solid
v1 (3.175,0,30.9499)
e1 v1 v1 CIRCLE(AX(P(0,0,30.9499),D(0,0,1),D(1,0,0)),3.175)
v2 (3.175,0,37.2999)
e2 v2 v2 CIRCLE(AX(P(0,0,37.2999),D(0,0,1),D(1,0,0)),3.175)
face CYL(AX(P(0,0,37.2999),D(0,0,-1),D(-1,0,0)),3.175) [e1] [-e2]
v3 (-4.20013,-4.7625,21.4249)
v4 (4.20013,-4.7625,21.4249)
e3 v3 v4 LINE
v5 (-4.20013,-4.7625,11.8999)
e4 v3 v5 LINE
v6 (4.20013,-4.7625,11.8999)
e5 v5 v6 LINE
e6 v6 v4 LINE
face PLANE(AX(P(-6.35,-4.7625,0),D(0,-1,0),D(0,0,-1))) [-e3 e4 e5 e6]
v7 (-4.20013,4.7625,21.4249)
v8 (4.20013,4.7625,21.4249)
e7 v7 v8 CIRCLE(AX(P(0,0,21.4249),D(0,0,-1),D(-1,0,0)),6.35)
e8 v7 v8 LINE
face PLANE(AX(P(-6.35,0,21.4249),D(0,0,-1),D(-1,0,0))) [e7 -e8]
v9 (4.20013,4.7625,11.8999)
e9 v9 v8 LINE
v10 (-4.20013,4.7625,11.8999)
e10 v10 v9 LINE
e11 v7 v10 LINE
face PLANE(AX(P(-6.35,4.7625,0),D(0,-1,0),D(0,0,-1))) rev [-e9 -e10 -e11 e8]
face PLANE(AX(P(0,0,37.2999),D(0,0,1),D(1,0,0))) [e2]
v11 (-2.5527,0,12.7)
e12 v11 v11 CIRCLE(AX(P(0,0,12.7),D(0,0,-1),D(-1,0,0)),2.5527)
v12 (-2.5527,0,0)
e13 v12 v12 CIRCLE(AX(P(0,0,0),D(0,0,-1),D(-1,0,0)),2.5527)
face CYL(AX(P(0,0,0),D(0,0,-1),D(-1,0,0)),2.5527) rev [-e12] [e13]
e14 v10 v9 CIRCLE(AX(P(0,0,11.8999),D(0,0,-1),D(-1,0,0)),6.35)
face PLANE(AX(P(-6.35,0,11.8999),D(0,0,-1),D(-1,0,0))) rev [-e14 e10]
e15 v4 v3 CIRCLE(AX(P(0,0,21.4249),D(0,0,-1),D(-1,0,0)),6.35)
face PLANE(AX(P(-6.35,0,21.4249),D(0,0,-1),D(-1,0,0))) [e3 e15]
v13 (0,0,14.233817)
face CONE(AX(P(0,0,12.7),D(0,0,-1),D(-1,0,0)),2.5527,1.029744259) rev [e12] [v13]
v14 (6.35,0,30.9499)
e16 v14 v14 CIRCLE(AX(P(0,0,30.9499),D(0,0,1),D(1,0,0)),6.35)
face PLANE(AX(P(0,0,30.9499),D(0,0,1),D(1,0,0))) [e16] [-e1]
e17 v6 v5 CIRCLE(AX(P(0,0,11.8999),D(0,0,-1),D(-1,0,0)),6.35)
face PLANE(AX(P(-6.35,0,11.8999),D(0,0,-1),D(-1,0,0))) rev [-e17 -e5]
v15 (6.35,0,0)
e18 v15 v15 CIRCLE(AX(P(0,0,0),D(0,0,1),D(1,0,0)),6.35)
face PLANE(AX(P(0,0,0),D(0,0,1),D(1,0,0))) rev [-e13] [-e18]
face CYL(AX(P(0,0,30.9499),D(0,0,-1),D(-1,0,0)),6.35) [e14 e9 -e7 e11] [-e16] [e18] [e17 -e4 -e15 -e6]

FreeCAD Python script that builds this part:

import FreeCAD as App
import Part
import Sketcher

V = App.Vector
Q = App.Units.Quantity

doc = App.newDocument("Part")
body = doc.addObject("PartDesign::Body", "Body")

# Sketch on XY plane
sketch1 = body.newObject("Sketcher::SketchObject", "Sketch")
sketch1.AttachmentSupport = (doc.getObject("XY_Plane"), [""])
sketch1.MapMode = "FlatFace"
sketch1.addGeometry(Part.Circle(V(0, 0, 0), V(0, 0, 1), 6.35), False)
sketch1.addConstraint([
    Sketcher.Constraint("Coincident", 0, 3, -1, 1),
    Sketcher.Constraint("Diameter", 0, Q("0.5 in")),
])
pad1 = body.newObject("PartDesign::Pad", "Pad")
pad1.Profile = sketch1
pad1.Length = Q("1.2185 in")

# Sketch on XY plane
sketch2 = body.newObject("Sketcher::SketchObject", "Sketch001")
sketch2.AttachmentSupport = (doc.getObject("XY_Plane"), [""])
sketch2.MapMode = "FlatFace"
sketch2.addGeometry(Part.Circle(V(0, 0, 0), V(0, 0, 1), 2.5527), False)
sketch2.addConstraint([
    Sketcher.Constraint("Coincident", 0, 3, -1, 1),
    Sketcher.Constraint("Diameter", 0, Q("0.201 in")),
])
doc.recompute()
hole = body.newObject("PartDesign::Hole", "Hole")
hole.Profile = sketch2
hole.ThreadType = "None"
hole.Diameter = Q("0.201 in")
hole.DepthType = "Dimension"
hole.Depth = Q("0.5 in")
hole.DrillPoint = "Angled"
hole.DrillPointAngle = 118
hole.Reversed = True

# Sketch on XY plane
sketch3 = body.newObject("Sketcher::SketchObject", "Sketch002")
sketch3.AttachmentSupport = (doc.getObject("XY_Plane"), [""])
sketch3.MapMode = "FlatFace"
sketch3.AttachmentOffset = App.Placement(V(0, 0, 1.2185 * 25.4), App.Rotation())
sketch3.addGeometry(Part.Circle(V(0, 0, 0), V(0, 0, 1), 3.175), False)
sketch3.addConstraint([
    Sketcher.Constraint("Coincident", 0, 3, -1, 1),
    Sketcher.Constraint("Diameter", 0, Q("0.25 in")),
])
pad2 = body.newObject("PartDesign::Pad", "Pad001")
pad2.Profile = sketch3
pad2.Length = Q("0.25 in")

# Sketch on YZ plane
sketch4 = body.newObject("Sketcher::SketchObject", "Sketch003")
sketch4.AttachmentSupport = (doc.getObject("YZ_Plane"), [""])
sketch4.MapMode = "FlatFace"
sketch4.addGeometry([
    Part.LineSegment(V(-6.35, 21.4249, 0), V(-6.35, 11.8999, 0)),  # 0
    Part.LineSegment(V(-6.35, 11.8999, 0), V(-4.7625, 11.8999, 0)),  # 1
    Part.LineSegment(V(-4.7625, 11.8999, 0), V(-4.7625, 21.4249, 0)),  # 2
    Part.LineSegment(V(-4.7625, 21.4249, 0), V(-6.35, 21.4249, 0)),  # 3
    Part.LineSegment(V(4.7625, 21.4249, 0), V(4.7625, 11.8999, 0)),  # 4
    Part.LineSegment(V(4.7625, 11.8999, 0), V(6.35, 11.8999, 0)),  # 5
    Part.LineSegment(V(6.35, 11.8999, 0), V(6.35, 21.4249, 0)),  # 6
    Part.LineSegment(V(6.35, 21.4249, 0), V(4.7625, 21.4249, 0)),  # 7
], False)
sketch4.addConstraint([
    Sketcher.Constraint("Coincident", 0, 2, 1, 1),
    Sketcher.Constraint("Coincident", 1, 2, 2, 1),
    Sketcher.Constraint("Coincident", 2, 2, 3, 1),
    Sketcher.Constraint("Coincident", 3, 2, 0, 1),
    Sketcher.Constraint("Coincident", 4, 2, 5, 1),
    Sketcher.Constraint("Coincident", 5, 2, 6, 1),
    Sketcher.Constraint("Coincident", 6, 2, 7, 1),
    Sketcher.Constraint("Coincident", 7, 2, 4, 1),
    Sketcher.Constraint("Vertical", 0),
    Sketcher.Constraint("Horizontal", 1),
    Sketcher.Constraint("Vertical", 2),
    Sketcher.Constraint("Horizontal", 3),
    Sketcher.Constraint("Vertical", 4),
    Sketcher.Constraint("Horizontal", 5),
    Sketcher.Constraint("Vertical", 6),
    Sketcher.Constraint("Horizontal", 7),
    Sketcher.Constraint("Symmetric", 1, 2, 4, 2, -2),
    Sketcher.Constraint("Symmetric", 3, 2, 6, 2, -2),
    Sketcher.Constraint("DistanceX", 0, 2, 5, 2, Q("0.5 in")),
    Sketcher.Constraint("DistanceX", 1, 1, 1, 2, Q("0.0625 in")),
    Sketcher.Constraint("DistanceY", 0, 2, 0, 1, Q("0.375 in")),
    Sketcher.Constraint("DistanceY", -1, 1, 0, 2, Q("0.4685 in")),
])
pocket1 = body.newObject("PartDesign::Pocket", "Pocket")
pocket1.Profile = sketch4
pocket1.Type = "ThroughAll"
pocket1.Midplane = True

doc.recompute()
